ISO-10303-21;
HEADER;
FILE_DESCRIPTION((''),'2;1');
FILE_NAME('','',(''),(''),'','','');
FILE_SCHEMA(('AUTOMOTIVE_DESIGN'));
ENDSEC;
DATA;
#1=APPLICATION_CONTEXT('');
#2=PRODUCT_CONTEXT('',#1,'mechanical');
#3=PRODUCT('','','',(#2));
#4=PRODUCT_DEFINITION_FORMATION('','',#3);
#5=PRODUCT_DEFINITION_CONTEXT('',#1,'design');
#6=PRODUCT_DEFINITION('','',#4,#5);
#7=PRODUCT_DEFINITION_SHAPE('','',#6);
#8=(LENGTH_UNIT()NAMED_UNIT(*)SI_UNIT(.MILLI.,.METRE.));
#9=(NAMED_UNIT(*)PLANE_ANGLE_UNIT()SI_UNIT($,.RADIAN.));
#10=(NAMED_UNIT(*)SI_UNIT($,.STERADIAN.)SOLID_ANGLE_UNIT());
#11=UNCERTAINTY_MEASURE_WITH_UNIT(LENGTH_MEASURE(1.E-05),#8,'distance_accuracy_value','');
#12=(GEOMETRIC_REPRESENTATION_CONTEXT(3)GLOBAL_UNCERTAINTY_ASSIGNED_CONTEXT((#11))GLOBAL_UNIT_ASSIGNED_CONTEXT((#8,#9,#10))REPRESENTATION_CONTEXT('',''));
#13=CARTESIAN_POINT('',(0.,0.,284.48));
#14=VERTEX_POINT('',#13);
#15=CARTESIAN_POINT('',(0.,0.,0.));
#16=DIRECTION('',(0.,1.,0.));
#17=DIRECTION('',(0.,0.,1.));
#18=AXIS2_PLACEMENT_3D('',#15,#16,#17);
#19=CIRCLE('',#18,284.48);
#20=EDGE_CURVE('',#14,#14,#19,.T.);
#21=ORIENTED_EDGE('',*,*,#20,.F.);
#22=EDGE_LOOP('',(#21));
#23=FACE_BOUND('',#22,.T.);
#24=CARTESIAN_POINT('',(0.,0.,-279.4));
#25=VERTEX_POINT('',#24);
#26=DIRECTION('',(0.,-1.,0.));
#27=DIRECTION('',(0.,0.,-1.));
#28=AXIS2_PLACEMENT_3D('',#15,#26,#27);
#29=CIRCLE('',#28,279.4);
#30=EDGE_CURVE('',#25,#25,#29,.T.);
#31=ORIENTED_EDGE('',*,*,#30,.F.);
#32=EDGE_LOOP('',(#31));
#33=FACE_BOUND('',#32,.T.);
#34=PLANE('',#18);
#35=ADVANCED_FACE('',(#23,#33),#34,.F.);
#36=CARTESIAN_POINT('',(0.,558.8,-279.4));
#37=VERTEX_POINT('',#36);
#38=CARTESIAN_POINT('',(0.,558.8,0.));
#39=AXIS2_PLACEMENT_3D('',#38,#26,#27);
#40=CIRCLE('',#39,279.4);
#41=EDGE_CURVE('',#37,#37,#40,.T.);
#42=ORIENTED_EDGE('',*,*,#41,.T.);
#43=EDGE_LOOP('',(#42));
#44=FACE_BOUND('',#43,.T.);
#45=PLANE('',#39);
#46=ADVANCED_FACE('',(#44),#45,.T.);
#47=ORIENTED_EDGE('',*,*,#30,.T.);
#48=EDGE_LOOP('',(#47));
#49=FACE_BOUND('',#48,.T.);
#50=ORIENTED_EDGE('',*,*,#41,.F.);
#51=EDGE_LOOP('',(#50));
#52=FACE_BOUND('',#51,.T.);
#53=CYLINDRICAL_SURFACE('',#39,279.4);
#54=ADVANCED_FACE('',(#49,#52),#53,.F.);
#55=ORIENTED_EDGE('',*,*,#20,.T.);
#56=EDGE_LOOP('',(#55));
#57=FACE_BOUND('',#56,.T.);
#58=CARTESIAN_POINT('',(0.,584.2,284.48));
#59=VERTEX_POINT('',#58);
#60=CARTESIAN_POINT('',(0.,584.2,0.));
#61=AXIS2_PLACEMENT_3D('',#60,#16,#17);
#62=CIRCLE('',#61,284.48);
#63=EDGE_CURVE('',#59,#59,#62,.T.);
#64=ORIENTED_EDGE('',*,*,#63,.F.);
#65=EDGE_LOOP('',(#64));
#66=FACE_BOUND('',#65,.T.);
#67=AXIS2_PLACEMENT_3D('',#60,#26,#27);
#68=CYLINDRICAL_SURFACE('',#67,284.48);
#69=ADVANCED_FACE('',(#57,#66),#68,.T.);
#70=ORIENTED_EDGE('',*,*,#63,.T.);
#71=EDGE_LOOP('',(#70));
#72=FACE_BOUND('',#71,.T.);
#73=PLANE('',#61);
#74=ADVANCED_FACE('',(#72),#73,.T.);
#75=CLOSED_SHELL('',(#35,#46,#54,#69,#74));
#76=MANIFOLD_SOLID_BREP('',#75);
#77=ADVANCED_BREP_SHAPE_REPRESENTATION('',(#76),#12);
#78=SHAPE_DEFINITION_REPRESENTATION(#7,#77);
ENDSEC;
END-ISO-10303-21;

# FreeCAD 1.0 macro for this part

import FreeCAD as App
import Part
import Sketcher
Q = App.Units.Quantity

doc = App.newDocument("Part")
body = doc.addObject("PartDesign::Body", "Body")

# Sketch on XZ plane
sketch1 = body.newObject("Sketcher::SketchObject", "Sketch")
sketch1.AttachmentSupport = (doc.getObject("XZ_Plane"), [""])
sketch1.MapMode = "FlatFace"
sketch1.addGeometry(Part.Circle(App.Vector(0, 0, 0), App.Vector(0, 0, 1), 284), False)
sketch1.addConstraint([
    Sketcher.Constraint("Coincident", 0, 3, -1, 1),
    Sketcher.Constraint("Diameter", 0, Q("22.4 in")),
])
pad1 = body.newObject("PartDesign::Pad", "Pad")
pad1.Profile = sketch1
pad1.Length = Q("23 in")
pad1.Reversed = True

# Sketch on XZ plane
sketch2 = body.newObject("Sketcher::SketchObject", "Sketch001")
sketch2.AttachmentSupport = (doc.getObject("XZ_Plane"), [""])
sketch2.MapMode = "FlatFace"
sketch2.addGeometry(Part.Circle(App.Vector(0, 0, 0), App.Vector(0, 0, 1), 279), False)
sketch2.addConstraint([
    Sketcher.Constraint("Coincident", 0, 3, -1, 1),
    Sketcher.Constraint("Diameter", 0, Q("22 in")),
])
pocket1 = body.newObject("PartDesign::Pocket", "Pocket")
pocket1.Profile = sketch2
pocket1.Length = Q("22 in")

doc.recompute()
